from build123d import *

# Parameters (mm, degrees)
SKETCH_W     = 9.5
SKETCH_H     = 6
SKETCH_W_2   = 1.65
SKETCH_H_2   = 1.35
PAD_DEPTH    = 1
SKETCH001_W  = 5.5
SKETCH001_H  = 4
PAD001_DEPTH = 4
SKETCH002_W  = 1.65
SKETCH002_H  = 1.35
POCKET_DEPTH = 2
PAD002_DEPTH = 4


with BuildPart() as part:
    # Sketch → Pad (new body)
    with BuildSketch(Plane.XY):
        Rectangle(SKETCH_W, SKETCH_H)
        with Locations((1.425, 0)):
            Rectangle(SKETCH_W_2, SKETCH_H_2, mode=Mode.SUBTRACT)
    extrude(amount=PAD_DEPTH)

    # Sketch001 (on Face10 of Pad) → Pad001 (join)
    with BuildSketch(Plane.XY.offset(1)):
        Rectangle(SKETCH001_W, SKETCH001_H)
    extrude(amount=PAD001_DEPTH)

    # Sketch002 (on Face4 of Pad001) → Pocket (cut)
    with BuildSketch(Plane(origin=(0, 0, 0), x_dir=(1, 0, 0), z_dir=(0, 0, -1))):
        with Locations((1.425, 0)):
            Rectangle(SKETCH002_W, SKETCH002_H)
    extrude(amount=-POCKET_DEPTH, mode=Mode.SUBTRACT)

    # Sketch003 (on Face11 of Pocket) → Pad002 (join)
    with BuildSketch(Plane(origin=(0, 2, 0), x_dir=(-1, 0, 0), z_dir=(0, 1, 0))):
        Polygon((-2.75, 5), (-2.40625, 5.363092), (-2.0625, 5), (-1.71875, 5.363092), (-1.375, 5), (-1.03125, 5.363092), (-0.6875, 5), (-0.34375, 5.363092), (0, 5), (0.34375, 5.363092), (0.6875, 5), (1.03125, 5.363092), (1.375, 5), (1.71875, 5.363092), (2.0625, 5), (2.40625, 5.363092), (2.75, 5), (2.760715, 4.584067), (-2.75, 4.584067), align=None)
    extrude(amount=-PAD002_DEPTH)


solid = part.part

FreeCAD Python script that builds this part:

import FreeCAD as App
import Part
import Sketcher

V = App.Vector

doc = App.newDocument("Part")
body = doc.addObject("PartDesign::Body", "Body")

sketch1 = doc.addObject("Sketcher::SketchObject", "Sketch")
body.addObject(sketch1)
sketch1.AttachmentSupport = (doc.XY_Plane, [""])
sketch1.MapMode = "FlatFace"
sketch1.addGeometry(Part.LineSegment(V(-4.75, 3, 0), V(-4.75, -3, 0)), False)
sketch1.addGeometry(Part.LineSegment(V(-4.75, -3, 0), V(4.75, -3, 0)), False)
sketch1.addGeometry(Part.LineSegment(V(4.75, -3, 0), V(4.75, 3, 0)), False)
sketch1.addGeometry(Part.LineSegment(V(4.75, 3, 0), V(-4.75, 3, 0)), False)
sketch1.addGeometry(Part.LineSegment(V(2.25, -0.675, 0), V(0.6, -0.675, 0)), False)
sketch1.addGeometry(Part.LineSegment(V(0.6, -0.675, 0), V(0.6, 0.675, 0)), False)
sketch1.addGeometry(Part.LineSegment(V(0.6, 0.675, 0), V(2.25, 0.675, 0)), False)
sketch1.addGeometry(Part.LineSegment(V(2.25, 0.675, 0), V(2.25, -0.675, 0)), False)
sketch1.addConstraint(Sketcher.Constraint("Coincident", 0, 2, 1, 1))
sketch1.addConstraint(Sketcher.Constraint("Coincident", 1, 2, 2, 1))
sketch1.addConstraint(Sketcher.Constraint("Coincident", 2, 2, 3, 1))
sketch1.addConstraint(Sketcher.Constraint("Coincident", 3, 2, 0, 1))
sketch1.addConstraint(Sketcher.Constraint("Coincident", 4, 2, 5, 1))
sketch1.addConstraint(Sketcher.Constraint("Coincident", 5, 2, 6, 1))
sketch1.addConstraint(Sketcher.Constraint("Coincident", 6, 2, 7, 1))
sketch1.addConstraint(Sketcher.Constraint("Coincident", 7, 2, 4, 1))
sketch1.addConstraint(Sketcher.Constraint("Vertical", 0))
sketch1.addConstraint(Sketcher.Constraint("Horizontal", 1))
sketch1.addConstraint(Sketcher.Constraint("Vertical", 2))
sketch1.addConstraint(Sketcher.Constraint("Horizontal", 3))
sketch1.addConstraint(Sketcher.Constraint("Horizontal", 4))
sketch1.addConstraint(Sketcher.Constraint("Vertical", 5))
sketch1.addConstraint(Sketcher.Constraint("Horizontal", 6))
sketch1.addConstraint(Sketcher.Constraint("Vertical", 7))
sketch1.addConstraint(Sketcher.Constraint("Symmetric", 0, 2, 2, 2, -1, 1))
sketch1.addConstraint(Sketcher.Constraint("DistanceY", 0, 2, 0, 1, 6.0))
sketch1.addConstraint(Sketcher.Constraint("DistanceX", 1, 1, 1, 2, 9.5))
sketch1.addConstraint(Sketcher.Constraint("DistanceX", 3, 2, 6, 2, 7.0))
sketch1.addConstraint(Sketcher.Constraint("DistanceX", 4, 2, 4, 1, 1.65))
sketch1.addConstraint(Sketcher.Constraint("DistanceY", 5, 1, 5, 2, 1.35))
sketch1.addConstraint(Sketcher.Constraint("DistanceY", 4, 2, -1, 1, 0.675))
pad1 = doc.addObject("PartDesign::Pad", "Pad")
body.addObject(pad1)
pad1.Profile = sketch1
pad1.Length = 1

sketch2 = doc.addObject("Sketcher::SketchObject", "Sketch001")
body.addObject(sketch2)
sketch2.AttachmentSupport = (doc.XY_Plane, [""])
sketch2.MapMode = "FlatFace"
sketch2.AttachmentOffset = App.Placement(V(0, 0, 1), App.Rotation())
sketch2.addGeometry(Part.LineSegment(V(-2.75, 2, 0), V(-2.75, -2, 0)), False)
sketch2.addGeometry(Part.LineSegment(V(-2.75, -2, 0), V(2.75, -2, 0)), False)
sketch2.addGeometry(Part.LineSegment(V(2.75, -2, 0), V(2.75, 2, 0)), False)
sketch2.addGeometry(Part.LineSegment(V(2.75, 2, 0), V(-2.75, 2, 0)), False)
sketch2.addConstraint(Sketcher.Constraint("Coincident", 0, 2, 1, 1))
sketch2.addConstraint(Sketcher.Constraint("Coincident", 1, 2, 2, 1))
sketch2.addConstraint(Sketcher.Constraint("Coincident", 2, 2, 3, 1))
sketch2.addConstraint(Sketcher.Constraint("Coincident", 3, 2, 0, 1))
sketch2.addConstraint(Sketcher.Constraint("Vertical", 0))
sketch2.addConstraint(Sketcher.Constraint("Horizontal", 1))
sketch2.addConstraint(Sketcher.Constraint("Vertical", 2))
sketch2.addConstraint(Sketcher.Constraint("Horizontal", 3))
sketch2.addConstraint(Sketcher.Constraint("Symmetric", 0, 2, 2, 2, -1, 1))
sketch2.addConstraint(Sketcher.Constraint("DistanceY", 0, 2, 0, 1, 4.0))
sketch2.addConstraint(Sketcher.Constraint("DistanceX", 1, 1, 1, 2, 5.5))
pad2 = doc.addObject("PartDesign::Pad", "Pad001")
body.addObject(pad2)
pad2.Profile = sketch2
pad2.Length = 4

sketch3 = doc.addObject("Sketcher::SketchObject", "Sketch002")
body.addObject(sketch3)
sketch3.AttachmentSupport = (doc.XY_Plane, [""])
sketch3.MapMode = "FlatFace"
sketch3.addGeometry(Part.LineSegment(V(0.6, -0.675, 0), V(0.6, 0.675, 0)), False)
sketch3.addGeometry(Part.LineSegment(V(0.6, 0.675, 0), V(2.25, 0.675, 0)), False)
sketch3.addGeometry(Part.LineSegment(V(2.25, 0.675, 0), V(2.25, -0.675, 0)), False)
sketch3.addGeometry(Part.LineSegment(V(2.25, -0.675, 0), V(0.6, -0.675, 0)), False)
sketch3.addConstraint(Sketcher.Constraint("Coincident", 0, 2, 1, 1))
sketch3.addConstraint(Sketcher.Constraint("Coincident", 1, 2, 2, 1))
sketch3.addConstraint(Sketcher.Constraint("Coincident", 2, 2, 3, 1))
sketch3.addConstraint(Sketcher.Constraint("Coincident", 3, 2, 0, 1))
sketch3.addConstraint(Sketcher.Constraint("Vertical", 0))
sketch3.addConstraint(Sketcher.Constraint("Horizontal", 1))
sketch3.addConstraint(Sketcher.Constraint("Vertical", 2))
sketch3.addConstraint(Sketcher.Constraint("Horizontal", 3))
sketch3.addConstraint(Sketcher.Constraint("DistanceX", 1, 1, 1, 2, 1.65))
sketch3.addConstraint(Sketcher.Constraint("DistanceY", 0, 1, 0, 2, 1.35))
sketch3.addConstraint(Sketcher.Constraint("DistanceX", -1, 1, 0, 2, 0.6))
sketch3.addConstraint(Sketcher.Constraint("DistanceY", -1, 1, 0, 2, 0.675))
pocket1 = doc.addObject("PartDesign::Pocket", "Pocket")
body.addObject(pocket1)
pocket1.Profile = sketch3
pocket1.Length = 2
pocket1.Reversed = True

sketch4 = doc.addObject("Sketcher::SketchObject", "Sketch003")
body.addObject(sketch4)
sketch4.AttachmentSupport = (doc.XZ_Plane, [""])
sketch4.MapMode = "FlatFace"
sketch4.AttachmentOffset = App.Placement(V(0, 0, -2), App.Rotation())
sketch4.addGeometry(Part.LineSegment(V(2.40625, 5.363092, 0), V(2.75, 5, 0)), False)
sketch4.addGeometry(Part.LineSegment(V(2.75, 5, 0), V(2.75, 4.584067, 0)), False)
sketch4.addGeometry(Part.LineSegment(V(2.75, 4.584067, 0), V(-2.760715, 4.584067, 0)), False)
sketch4.addGeometry(Part.LineSegment(V(-2.760715, 4.584067, 0), V(-2.75, 5, 0)), False)
sketch4.addGeometry(Part.LineSegment(V(-2.75, 5, 0), V(-2.40625, 5.363092, 0)), False)
sketch4.addGeometry(Part.LineSegment(V(-2.40625, 5.363092, 0), V(-2.0625, 5, 0)), False)
sketch4.addGeometry(Part.LineSegment(V(-2.0625, 5, 0), V(-1.71875, 5.363092, 0)), False)
sketch4.addGeometry(Part.LineSegment(V(-1.71875, 5.363092, 0), V(-1.375, 5, 0)), False)
sketch4.addGeometry(Part.LineSegment(V(-1.375, 5, 0), V(-1.03125, 5.363092, 0)), False)
sketch4.addGeometry(Part.LineSegment(V(-1.03125, 5.363092, 0), V(-0.6875, 5, 0)), False)
sketch4.addGeometry(Part.LineSegment(V(-0.6875, 5, 0), V(-0.34375, 5.363092, 0)), False)
sketch4.addGeometry(Part.LineSegment(V(-0.34375, 5.363092, 0), V(0, 5, 0)), False)
sketch4.addGeometry(Part.LineSegment(V(0, 5, 0), V(0.34375, 5.363092, 0)), False)
sketch4.addGeometry(Part.LineSegment(V(0.34375, 5.363092, 0), V(0.6875, 5, 0)), False)
sketch4.addGeometry(Part.LineSegment(V(0.6875, 5, 0), V(1.03125, 5.363092, 0)), False)
sketch4.addGeometry(Part.LineSegment(V(1.03125, 5.363092, 0), V(1.375, 5, 0)), False)
sketch4.addGeometry(Part.LineSegment(V(1.375, 5, 0), V(1.71875, 5.363092, 0)), False)
sketch4.addGeometry(Part.LineSegment(V(1.71875, 5.363092, 0), V(2.0625, 5, 0)), False)
sketch4.addGeometry(Part.LineSegment(V(2.0625, 5, 0), V(2.40625, 5.363092, 0)), False)
sketch4.addConstraint(Sketcher.Constraint("Coincident", 0, 2, 1, 1))
sketch4.addConstraint(Sketcher.Constraint("Coincident", 1, 2, 2, 1))
sketch4.addConstraint(Sketcher.Constraint("Coincident", 2, 2, 3, 1))
sketch4.addConstraint(Sketcher.Constraint("Coincident", 3, 2, 4, 1))
sketch4.addConstraint(Sketcher.Constraint("Coincident", 4, 2, 5, 1))
sketch4.addConstraint(Sketcher.Constraint("Coincident", 5, 2, 6, 1))
sketch4.addConstraint(Sketcher.Constraint("Coincident", 6, 2, 7, 1))
sketch4.addConstraint(Sketcher.Constraint("Coincident", 7, 2, 8, 1))
sketch4.addConstraint(Sketcher.Constraint("Coincident", 8, 2, 9, 1))
sketch4.addConstraint(Sketcher.Constraint("Coincident", 9, 2, 10, 1))
sketch4.addConstraint(Sketcher.Constraint("Coincident", 10, 2, 11, 1))
sketch4.addConstraint(Sketcher.Constraint("Coincident", 11, 2, 12, 1))
sketch4.addConstraint(Sketcher.Constraint("Coincident", 12, 2, 13, 1))
sketch4.addConstraint(Sketcher.Constraint("Coincident", 13, 2, 14, 1))
sketch4.addConstraint(Sketcher.Constraint("Coincident", 14, 2, 15, 1))
sketch4.addConstraint(Sketcher.Constraint("Coincident", 15, 2, 16, 1))
sketch4.addConstraint(Sketcher.Constraint("Coincident", 16, 2, 17, 1))
sketch4.addConstraint(Sketcher.Constraint("Coincident", 17, 2, 18, 1))
sketch4.addConstraint(Sketcher.Constraint("Coincident", 18, 2, 0, 1))
sketch4.addConstraint(Sketcher.Constraint("Vertical", 1))
sketch4.addConstraint(Sketcher.Constraint("Horizontal", 2))
sketch4.addConstraint(Sketcher.Constraint("Symmetric", 0, 2, 3, 2, -2))
sketch4.addConstraint(Sketcher.Constraint("Symmetric", 10, 2, 12, 2, -2))
sketch4.addConstraint(Sketcher.Constraint("Symmetric", 9, 2, 13, 2, -2))
sketch4.addConstraint(Sketcher.Constraint("Symmetric", 8, 2, 14, 2, -2))
sketch4.addConstraint(Sketcher.Constraint("Symmetric", 7, 2, 15, 2, -2))
sketch4.addConstraint(Sketcher.Constraint("Symmetric", 6, 2, 16, 2, -2))
sketch4.addConstraint(Sketcher.Constraint("Symmetric", 5, 2, 17, 2, -2))
sketch4.addConstraint(Sketcher.Constraint("Symmetric", 4, 2, 18, 2, -2))
sketch4.addConstraint(Sketcher.Constraint("PointOnObject", 11, 2, -2))
sketch4.addConstraint(Sketcher.Constraint("Parallel", 0, 5))
sketch4.addConstraint(Sketcher.Constraint("Parallel", 4, 6))
sketch4.addConstraint(Sketcher.Constraint("Parallel", 5, 7))
sketch4.addConstraint(Sketcher.Constraint("Parallel", 6, 8))
sketch4.addConstraint(Sketcher.Constraint("Parallel", 7, 9))
sketch4.addConstraint(Sketcher.Constraint("Parallel", 8, 10))
sketch4.addConstraint(Sketcher.Constraint("Parallel", 9, 11))
sketch4.addConstraint(Sketcher.Constraint("Horizontal", 3, 2, 5, 2))
sketch4.addConstraint(Sketcher.Constraint("Horizontal", 4, 2, 6, 2))
sketch4.addConstraint(Sketcher.Constraint("Horizontal", 5, 2, 7, 2))
sketch4.addConstraint(Sketcher.Constraint("Horizontal", 6, 2, 8, 2))
sketch4.addConstraint(Sketcher.Constraint("Horizontal", 7, 2, 9, 2))
sketch4.addConstraint(Sketcher.Constraint("Horizontal", 8, 2, 10, 2))
sketch4.addConstraint(Sketcher.Constraint("Horizontal", 9, 2, 11, 2))
sketch4.addConstraint(Sketcher.Constraint("DistanceY", -1, 1, 0, 2, 5.0))
sketch4.addConstraint(Sketcher.Constraint("Distance", 0, 0.5))
sketch4.addConstraint(Sketcher.Constraint("DistanceX", 3, 2, 0, 2, 5.5))
sketch4.addConstraint(Sketcher.Constraint("Distance", 3, 0.416071))
sketch4.addConstraint(Sketcher.Constraint("DistanceX", 2, 2, 2, 1, 5.510715))
pad3 = doc.addObject("PartDesign::Pad", "Pad002")
body.addObject(pad3)
pad3.Profile = sketch4
pad3.Length = 4

doc.recompute()
